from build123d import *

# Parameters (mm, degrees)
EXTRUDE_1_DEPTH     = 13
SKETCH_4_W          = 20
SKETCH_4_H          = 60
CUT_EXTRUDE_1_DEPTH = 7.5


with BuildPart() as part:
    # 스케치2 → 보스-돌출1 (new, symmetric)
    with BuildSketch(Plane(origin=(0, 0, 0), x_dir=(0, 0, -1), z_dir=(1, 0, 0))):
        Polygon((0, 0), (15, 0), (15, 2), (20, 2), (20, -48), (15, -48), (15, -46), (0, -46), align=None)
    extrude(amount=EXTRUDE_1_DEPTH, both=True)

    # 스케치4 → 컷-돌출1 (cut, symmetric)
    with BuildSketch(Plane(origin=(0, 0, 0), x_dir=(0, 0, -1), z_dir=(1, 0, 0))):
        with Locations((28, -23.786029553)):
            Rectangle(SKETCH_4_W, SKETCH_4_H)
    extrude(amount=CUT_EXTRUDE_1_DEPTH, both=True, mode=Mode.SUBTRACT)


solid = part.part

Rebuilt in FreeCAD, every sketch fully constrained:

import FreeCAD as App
import Part
import Sketcher


def add_polygon(sketch, points):
    """Adds a closed chain of lines whose ends are joined by coincident constraints."""
    first, n = sketch.GeometryCount, len(points)
    for a, b in zip(points, points[1:] + points[:1]):
        sketch.addGeometry(Part.LineSegment(App.Vector(*a, 0), App.Vector(*b, 0)), False)
    for i in range(n):
        sketch.addConstraint(Sketcher.Constraint("Coincident", first + i, 2, first + (i + 1) % n, 1))

doc = App.newDocument("Part")
params = doc.addObject("Spreadsheet::Sheet", "Params")
for row, (alias, value) in enumerate([
    ("sketch1_width", "46 mm"),
    ("sketch1_width2", "2 mm"),
    ("sketch1_height", "15 mm"),
    ("sketch1_height2", "5 mm"),
    ("pad1_length", "26 mm"),
    ("sketch2_width", "60 mm"),
    ("sketch2_height", "20 mm"),
    ("pocket1_length", "15 mm"),
], start=1):
    params.set(f"A{row}", alias)
    params.set(f"B{row}", "=" + value)
    params.setAlias(f"B{row}", alias)

body = doc.addObject("PartDesign::Body", "Body")

# Sketch on YZ plane
sketch1 = body.newObject("Sketcher::SketchObject", "Sketch")
sketch1.AttachmentSupport = (doc.getObject("YZ_Plane"), [""])
sketch1.MapMode = "FlatFace"
add_polygon(sketch1, [(0, -15), (0, 0), (-46, 0), (-46, -15), (-48, -15), (-48, -20), (2, -20), (2, -15)])  # lines 0-7
sketch1.addConstraint([
    Sketcher.Constraint("Vertical", 0),
    Sketcher.Constraint("Horizontal", 1),
    Sketcher.Constraint("Vertical", 2),
    Sketcher.Constraint("Horizontal", 3),
    Sketcher.Constraint("Vertical", 4),
    Sketcher.Constraint("Horizontal", 5),
    Sketcher.Constraint("Vertical", 6),
    Sketcher.Constraint("Horizontal", 7),
    Sketcher.Constraint("Coincident", 0, 2, -1, 1),
    Sketcher.Constraint("Horizontal", 3, 2, 6, 2),
    Sketcher.Constraint("Equal", 3, 7),
    Sketcher.Constraint("DistanceX", 1, 2, 1, 1, 46.0),
    Sketcher.Constraint("DistanceX", 3, 2, 3, 1, 2.0),
    Sketcher.Constraint("DistanceY", 0, 1, 0, 2, 15.0),
    Sketcher.Constraint("DistanceY", 4, 2, 4, 1, 5.0),
])
sketch1.setExpression("Constraints[19]", "Params.sketch1_width")
sketch1.setExpression("Constraints[20]", "Params.sketch1_width2")
sketch1.setExpression("Constraints[21]", "Params.sketch1_height")
sketch1.setExpression("Constraints[22]", "Params.sketch1_height2")
pad1 = body.newObject("PartDesign::Pad", "Pad")
pad1.Profile = sketch1
pad1.setExpression("Length", "Params.pad1_length")
pad1.Midplane = True

# Sketch on YZ plane
sketch2 = body.newObject("Sketcher::SketchObject", "Sketch001")
sketch2.AttachmentSupport = (doc.getObject("YZ_Plane"), [""])
sketch2.MapMode = "FlatFace"
add_polygon(sketch2, [(6, -18), (-54, -18), (-54, -38), (6, -38)])  # lines 0-3
sketch2.addConstraint([
    Sketcher.Constraint("Horizontal", 0),
    Sketcher.Constraint("Vertical", 1),
    Sketcher.Constraint("Horizontal", 2),
    Sketcher.Constraint("Vertical", 3),
    Sketcher.Constraint("DistanceX", 0, 2, 0, 1, 60.0),
    Sketcher.Constraint("DistanceY", 1, 2, 1, 1, 20.0),
    Sketcher.Constraint("DistanceY", 0, 2, -1, 1, 18.0),
    Sketcher.Constraint("DistanceX", 0, 2, -1, 1, 53.78603),
])
sketch2.setExpression("Constraints[8]", "Params.sketch2_width")
sketch2.setExpression("Constraints[9]", "Params.sketch2_height")
pocket1 = body.newObject("PartDesign::Pocket", "Pocket")
pocket1.Profile = sketch2
pocket1.setExpression("Length", "Params.pocket1_length")
pocket1.Midplane = True

doc.recompute()
